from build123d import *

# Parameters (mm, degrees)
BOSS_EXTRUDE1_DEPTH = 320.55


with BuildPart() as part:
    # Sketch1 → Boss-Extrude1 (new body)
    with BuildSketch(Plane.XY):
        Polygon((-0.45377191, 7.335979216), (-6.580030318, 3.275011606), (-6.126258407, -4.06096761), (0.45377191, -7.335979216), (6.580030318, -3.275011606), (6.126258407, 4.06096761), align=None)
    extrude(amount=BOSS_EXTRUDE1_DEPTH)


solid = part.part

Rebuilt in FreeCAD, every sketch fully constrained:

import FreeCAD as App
import Part
import Sketcher
from FreeCAD import Vector

doc = App.newDocument("Part")
body = doc.addObject("PartDesign::Body", "Body")

sketch1 = doc.addObject("Sketcher::SketchObject", "Sketch")
body.addObject(sketch1)
sketch1.AttachmentSupport = (doc.XY_Plane, [""])
sketch1.MapMode = "FlatFace"
sketch1.addGeometry(Part.LineSegment(Vector(-0.453772, 7.335979, 0), Vector(-6.58003, 3.275012, 0)), False)
sketch1.addGeometry(Part.LineSegment(Vector(-6.58003, 3.275012, 0), Vector(-6.126258, -4.060968, 0)), False)
sketch1.addGeometry(Part.LineSegment(Vector(-6.126258, -4.060968, 0), Vector(0.453772, -7.335979, 0)), False)
sketch1.addGeometry(Part.LineSegment(Vector(0.453772, -7.335979, 0), Vector(6.58003, -3.275012, 0)), False)
sketch1.addGeometry(Part.LineSegment(Vector(6.58003, -3.275012, 0), Vector(6.126258, 4.060968, 0)), False)
sketch1.addGeometry(Part.LineSegment(Vector(6.126258, 4.060968, 0), Vector(-0.453772, 7.335979, 0)), False)
sketch1.addConstraint(Sketcher.Constraint("Coincident", 0, 2, 1, 1))
sketch1.addConstraint(Sketcher.Constraint("Coincident", 1, 2, 2, 1))
sketch1.addConstraint(Sketcher.Constraint("Coincident", 2, 2, 3, 1))
sketch1.addConstraint(Sketcher.Constraint("Coincident", 3, 2, 4, 1))
sketch1.addConstraint(Sketcher.Constraint("Coincident", 4, 2, 5, 1))
sketch1.addConstraint(Sketcher.Constraint("Coincident", 5, 2, 0, 1))
sketch1.addConstraint(Sketcher.Constraint("Symmetric", 0, 2, 3, 2, -1, 1))
sketch1.addConstraint(Sketcher.Constraint("Symmetric", 1, 2, 4, 2, -1, 1))
sketch1.addConstraint(Sketcher.Constraint("Symmetric", 2, 2, 5, 2, -1, 1))
sketch1.addConstraint(Sketcher.Constraint("Equal", 0, 1))
sketch1.addConstraint(Sketcher.Constraint("Equal", 1, 2))
sketch1.addConstraint(Sketcher.Constraint("Distance", 0, 7.35))
sketch1.addConstraint(Sketcher.Constraint("DistanceX", 0, 2, -1, 1, 6.58003))
sketch1.addConstraint(Sketcher.Constraint("DistanceY", -1, 1, 0, 2, 3.275012))
sketch1.addConstraint(Sketcher.Constraint("DistanceX", 1, 2, -1, 1, 6.126258))
pad1 = doc.addObject("PartDesign::Pad", "Pad")
body.addObject(pad1)
pad1.Profile = sketch1
pad1.Length = 320.55

doc.recompute()
